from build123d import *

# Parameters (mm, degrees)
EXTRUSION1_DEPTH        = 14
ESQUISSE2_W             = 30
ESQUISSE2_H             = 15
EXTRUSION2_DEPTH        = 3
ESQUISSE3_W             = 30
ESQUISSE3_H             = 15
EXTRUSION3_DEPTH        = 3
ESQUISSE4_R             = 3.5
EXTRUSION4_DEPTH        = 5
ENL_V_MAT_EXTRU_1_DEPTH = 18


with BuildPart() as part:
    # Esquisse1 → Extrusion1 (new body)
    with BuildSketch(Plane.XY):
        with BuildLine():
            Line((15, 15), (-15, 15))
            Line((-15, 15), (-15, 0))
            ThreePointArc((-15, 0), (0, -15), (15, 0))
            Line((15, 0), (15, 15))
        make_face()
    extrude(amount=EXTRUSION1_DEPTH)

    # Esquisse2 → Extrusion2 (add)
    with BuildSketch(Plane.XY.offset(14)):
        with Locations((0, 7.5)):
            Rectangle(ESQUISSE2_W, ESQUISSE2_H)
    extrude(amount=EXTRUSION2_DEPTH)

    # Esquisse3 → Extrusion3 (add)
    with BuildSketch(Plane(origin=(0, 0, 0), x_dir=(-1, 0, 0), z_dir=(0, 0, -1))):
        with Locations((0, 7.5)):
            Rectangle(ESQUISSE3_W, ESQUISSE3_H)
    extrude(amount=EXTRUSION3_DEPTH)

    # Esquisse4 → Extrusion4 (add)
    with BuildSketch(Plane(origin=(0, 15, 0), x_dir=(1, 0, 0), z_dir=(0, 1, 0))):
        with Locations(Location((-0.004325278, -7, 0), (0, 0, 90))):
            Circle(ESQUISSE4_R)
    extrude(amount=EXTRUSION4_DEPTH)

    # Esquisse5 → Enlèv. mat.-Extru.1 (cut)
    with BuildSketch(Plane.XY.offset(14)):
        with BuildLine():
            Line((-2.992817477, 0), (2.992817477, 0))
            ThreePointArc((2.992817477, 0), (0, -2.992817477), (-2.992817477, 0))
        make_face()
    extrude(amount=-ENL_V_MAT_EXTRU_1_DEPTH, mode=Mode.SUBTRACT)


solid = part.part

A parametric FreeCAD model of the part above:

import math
import FreeCAD as App
import Part
import Sketcher
from FreeCAD import Vector
Q = App.Units.Quantity

doc = App.newDocument("Part")
params = doc.addObject("Spreadsheet::Sheet", "Params")
for row, (alias, value) in enumerate([
    ("sketch1_radius", "15 mm"),
    ("sketch1_height", "15 mm"),
    ("pad1_length", "14 mm"),
    ("sketch2_width", "30 mm"),
    ("sketch2_height", "15 mm"),
    ("pad2_length", "3 mm"),
    ("sketch3_width", "30 mm"),
    ("sketch3_height", "15 mm"),
    ("pad3_length", "3 mm"),
    ("sketch4_diameter", "7 mm"),
    ("pad4_length", "5 mm"),
    ("pocket1_length", "18 mm"),
], start=1):
    params.set(f"A{row}", alias)
    params.set(f"B{row}", "=" + value)
    params.setAlias(f"B{row}", alias)

body = doc.addObject("PartDesign::Body", "Body")

sketch1 = body.newObject("Sketcher::SketchObject", "Sketch")
sketch1.AttachmentSupport = (doc.getObject("XY_Plane"), [""])
sketch1.MapMode = "FlatFace"
sketch1.addGeometry([
    Part.LineSegment(Vector(15, 15, 0), Vector(-15, 15, 0)),
    Part.LineSegment(Vector(-15, 15, 0), Vector(-15, 0, 0)),
    Part.ArcOfCircle(Part.Circle(Vector(0, 0, 0), Vector(0, 0, 1), 15), math.radians(180), math.radians(360)),
    Part.LineSegment(Vector(15, 0, 0), Vector(15, 15, 0)),
], False)
sketch1.addConstraint([
    Sketcher.Constraint("Coincident", 0, 2, 1, 1),
    Sketcher.Constraint("Tangent", 1, 2, 2, 1),
    Sketcher.Constraint("Tangent", 2, 2, 3, 1),
    Sketcher.Constraint("Coincident", 3, 2, 0, 1),
    Sketcher.Constraint("Horizontal", 0),
    Sketcher.Constraint("Vertical", 1),
    Sketcher.Constraint("Vertical", 3),
    Sketcher.Constraint("Coincident", 2, 3, -1, 1),
    Sketcher.Constraint("Radius", 2, Q("15 mm")),
    Sketcher.Constraint("DistanceY", 1, 2, 1, 1, Q("15 mm")),
])
sketch1.setExpression("Constraints[8]", "Params.sketch1_radius")
sketch1.setExpression("Constraints[9]", "Params.sketch1_height")
pad1 = body.newObject("PartDesign::Pad", "Pad")
pad1.Profile = sketch1
pad1.setExpression("Length", "Params.pad1_length")

sketch2 = body.newObject("Sketcher::SketchObject", "Sketch001")
sketch2.AttachmentSupport = (doc.getObject("XY_Plane"), [""])
sketch2.MapMode = "FlatFace"
sketch2.AttachmentOffset = App.Placement(Vector(0, 0, 14), App.Rotation())
sketch2.addGeometry([
    Part.LineSegment(Vector(-15, 15, 0), Vector(-15, 0, 0)),
    Part.LineSegment(Vector(-15, 0, 0), Vector(15, 0, 0)),
    Part.LineSegment(Vector(15, 0, 0), Vector(15, 15, 0)),
    Part.LineSegment(Vector(15, 15, 0), Vector(-15, 15, 0)),
], False)
sketch2.addConstraint([
    Sketcher.Constraint("Coincident", 0, 2, 1, 1),
    Sketcher.Constraint("Coincident", 1, 2, 2, 1),
    Sketcher.Constraint("Coincident", 2, 2, 3, 1),
    Sketcher.Constraint("Coincident", 3, 2, 0, 1),
    Sketcher.Constraint("Vertical", 0),
    Sketcher.Constraint("Horizontal", 1),
    Sketcher.Constraint("Vertical", 2),
    Sketcher.Constraint("Horizontal", 3),
    Sketcher.Constraint("Symmetric", 0, 2, 1, 2, -1, 1),
    Sketcher.Constraint("DistanceX", 1, 1, 1, 2, Q("30 mm")),
    Sketcher.Constraint("DistanceY", 0, 2, 0, 1, Q("15 mm")),
])
sketch2.setExpression("Constraints[9]", "Params.sketch2_width")
sketch2.setExpression("Constraints[10]", "Params.sketch2_height")
pad2 = body.newObject("PartDesign::Pad", "Pad001")
pad2.Profile = sketch2
pad2.setExpression("Length", "Params.pad2_length")

sketch3 = body.newObject("Sketcher::SketchObject", "Sketch002")
sketch3.AttachmentSupport = (doc.getObject("XY_Plane"), [""])
sketch3.MapMode = "FlatFace"
sketch3.addGeometry([
    Part.LineSegment(Vector(15, 15, 0), Vector(15, 0, 0)),
    Part.LineSegment(Vector(15, 0, 0), Vector(-15, 0, 0)),
    Part.LineSegment(Vector(-15, 0, 0), Vector(-15, 15, 0)),
    Part.LineSegment(Vector(-15, 15, 0), Vector(15, 15, 0)),
], False)
sketch3.addConstraint([
    Sketcher.Constraint("Coincident", 0, 2, 1, 1),
    Sketcher.Constraint("Coincident", 1, 2, 2, 1),
    Sketcher.Constraint("Coincident", 2, 2, 3, 1),
    Sketcher.Constraint("Coincident", 3, 2, 0, 1),
    Sketcher.Constraint("Vertical", 0),
    Sketcher.Constraint("Horizontal", 1),
    Sketcher.Constraint("Vertical", 2),
    Sketcher.Constraint("Horizontal", 3),
    Sketcher.Constraint("Symmetric", 0, 2, 1, 2, -1, 1),
    Sketcher.Constraint("DistanceX", 1, 2, 1, 1, Q("30 mm")),
    Sketcher.Constraint("DistanceY", 0, 2, 0, 1, Q("15 mm")),
])
sketch3.setExpression("Constraints[9]", "Params.sketch3_width")
sketch3.setExpression("Constraints[10]", "Params.sketch3_height")
pad3 = body.newObject("PartDesign::Pad", "Pad002")
pad3.Profile = sketch3
pad3.setExpression("Length", "Params.pad3_length")
pad3.Reversed = True

sketch4 = body.newObject("Sketcher::SketchObject", "Sketch003")
sketch4.AttachmentSupport = (doc.getObject("XZ_Plane"), [""])
sketch4.MapMode = "FlatFace"
sketch4.AttachmentOffset = App.Placement(Vector(0, 0, -15), App.Rotation())
sketch4.addGeometry(Part.Circle(Vector(0, 7, 0), Vector(0, 0, 1), 3.5), False)
sketch4.addConstraint([
    Sketcher.Constraint("Diameter", 0, Q("7 mm")),
    Sketcher.Constraint("DistanceY", -1, 1, 0, 3, Q("7 mm")),
    Sketcher.Constraint("DistanceX", 0, 3, -1, 1, Q("0.004325 mm")),
])
sketch4.setExpression("Constraints[0]", "Params.sketch4_diameter")
pad4 = body.newObject("PartDesign::Pad", "Pad003")
pad4.Profile = sketch4
pad4.setExpression("Length", "Params.pad4_length")
pad4.Reversed = True

sketch5 = body.newObject("Sketcher::SketchObject", "Sketch004")
sketch5.AttachmentSupport = (doc.getObject("XY_Plane"), [""])
sketch5.MapMode = "FlatFace"
sketch5.AttachmentOffset = App.Placement(Vector(0, 0, 14), App.Rotation())
sketch5.addGeometry([
    Part.LineSegment(Vector(3, 0, 0), Vector(-3, 0, 0)),
    Part.ArcOfCircle(Part.Circle(Vector(0, 0, 0), Vector(0, 0, 1), 3), math.radians(180), math.radians(360)),
], False)
sketch5.addConstraint([
    Sketcher.Constraint("Coincident", 0, 1, 1, 2),
    Sketcher.Constraint("Coincident", 1, 1, 0, 2),
    Sketcher.Constraint("Horizontal", 0),
    Sketcher.Constraint("Coincident", 1, 3, -1, 1),
    Sketcher.Constraint("PointOnObject", 0, 1, -1),
    Sketcher.Constraint("Radius", 1, Q("2.992817 mm")),
])
pocket1 = body.newObject("PartDesign::Pocket", "Pocket")
pocket1.Profile = sketch5
pocket1.setExpression("Length", "Params.pocket1_length")

doc.recompute()
